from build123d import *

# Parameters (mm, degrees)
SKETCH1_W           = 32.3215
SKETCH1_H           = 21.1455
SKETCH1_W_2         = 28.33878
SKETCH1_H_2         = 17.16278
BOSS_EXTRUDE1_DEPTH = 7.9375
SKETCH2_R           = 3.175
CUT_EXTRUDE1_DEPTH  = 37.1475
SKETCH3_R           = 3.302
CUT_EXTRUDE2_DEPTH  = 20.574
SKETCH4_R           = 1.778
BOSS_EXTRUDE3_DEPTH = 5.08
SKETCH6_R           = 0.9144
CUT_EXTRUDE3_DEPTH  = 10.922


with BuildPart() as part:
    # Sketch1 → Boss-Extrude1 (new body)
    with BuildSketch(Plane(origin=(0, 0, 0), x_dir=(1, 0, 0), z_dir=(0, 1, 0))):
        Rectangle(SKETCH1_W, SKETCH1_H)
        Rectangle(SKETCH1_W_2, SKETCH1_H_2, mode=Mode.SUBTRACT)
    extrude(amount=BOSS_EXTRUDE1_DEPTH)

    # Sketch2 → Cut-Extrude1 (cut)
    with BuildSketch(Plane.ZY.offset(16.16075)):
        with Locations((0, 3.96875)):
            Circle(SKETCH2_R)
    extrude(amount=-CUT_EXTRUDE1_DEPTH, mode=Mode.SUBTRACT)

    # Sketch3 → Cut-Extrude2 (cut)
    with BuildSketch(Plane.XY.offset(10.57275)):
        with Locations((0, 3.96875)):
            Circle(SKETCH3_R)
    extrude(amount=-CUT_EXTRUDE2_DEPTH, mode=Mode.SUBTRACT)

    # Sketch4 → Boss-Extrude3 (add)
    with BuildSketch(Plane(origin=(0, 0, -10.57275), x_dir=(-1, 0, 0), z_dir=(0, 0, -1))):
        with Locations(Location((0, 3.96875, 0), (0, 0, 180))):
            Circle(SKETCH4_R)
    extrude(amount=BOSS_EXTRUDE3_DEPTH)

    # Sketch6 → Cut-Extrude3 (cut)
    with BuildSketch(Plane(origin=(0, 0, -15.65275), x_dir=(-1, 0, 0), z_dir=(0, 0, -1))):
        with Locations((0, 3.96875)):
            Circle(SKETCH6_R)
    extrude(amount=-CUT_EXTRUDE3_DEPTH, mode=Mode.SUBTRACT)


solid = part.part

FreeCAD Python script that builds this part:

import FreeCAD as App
import Part
import Sketcher
from FreeCAD import Vector
Q = App.Units.Quantity

doc = App.newDocument("Part")
body = doc.addObject("PartDesign::Body", "Body")

# Sketch on XZ plane
sketch1 = body.newObject("Sketcher::SketchObject", "Sketch")
sketch1.AttachmentSupport = (doc.getObject("XZ_Plane"), [""])
sketch1.MapMode = "FlatFace"
sketch1.addGeometry([
    Part.LineSegment(Vector(-16, -11, 0), Vector(-16, 11, 0)),  # 0
    Part.LineSegment(Vector(-16, 11, 0), Vector(16, 11, 0)),  # 1
    Part.LineSegment(Vector(16, 11, 0), Vector(16, -11, 0)),  # 2
    Part.LineSegment(Vector(16, -11, 0), Vector(-16, -11, 0)),  # 3
    Part.LineSegment(Vector(14, 9, 0), Vector(-14, 9, 0)),  # 4
    Part.LineSegment(Vector(-14, 9, 0), Vector(-14, -9, 0)),  # 5
    Part.LineSegment(Vector(-14, -9, 0), Vector(14, -9, 0)),  # 6
    Part.LineSegment(Vector(14, -9, 0), Vector(14, 9, 0)),  # 7
], False)
sketch1.addConstraint([
    Sketcher.Constraint("Coincident", 0, 2, 1, 1),
    Sketcher.Constraint("Coincident", 1, 2, 2, 1),
    Sketcher.Constraint("Coincident", 2, 2, 3, 1),
    Sketcher.Constraint("Coincident", 3, 2, 0, 1),
    Sketcher.Constraint("Coincident", 4, 2, 5, 1),
    Sketcher.Constraint("Coincident", 5, 2, 6, 1),
    Sketcher.Constraint("Coincident", 6, 2, 7, 1),
    Sketcher.Constraint("Coincident", 7, 2, 4, 1),
    Sketcher.Constraint("Vertical", 0),
    Sketcher.Constraint("Horizontal", 1),
    Sketcher.Constraint("Vertical", 2),
    Sketcher.Constraint("Horizontal", 3),
    Sketcher.Constraint("Horizontal", 4),
    Sketcher.Constraint("Vertical", 5),
    Sketcher.Constraint("Horizontal", 6),
    Sketcher.Constraint("Vertical", 7),
    Sketcher.Constraint("Symmetric", 0, 2, 2, 2, -1, 1),
    Sketcher.Constraint("Symmetric", 4, 2, 6, 2, -1, 1),
    Sketcher.Constraint("DistanceX", 1, 1, 1, 2, Q("1.2725 in")),
    Sketcher.Constraint("DistanceX", 4, 2, 4, 1, Q("1.1157 in")),
    Sketcher.Constraint("DistanceY", 0, 1, 0, 2, Q("0.8325 in")),
    Sketcher.Constraint("DistanceY", 5, 2, 5, 1, Q("0.6757 in")),
])
pad1 = body.newObject("PartDesign::Pad", "Pad")
pad1.Profile = sketch1
pad1.Length = Q("0.3125 in")
pad1.Reversed = True

# Sketch on YZ plane
sketch2 = body.newObject("Sketcher::SketchObject", "Sketch001")
sketch2.AttachmentSupport = (doc.getObject("YZ_Plane"), [""])
sketch2.MapMode = "FlatFace"
sketch2.AttachmentOffset = App.Placement(Vector(0, 0, -16.16075), App.Rotation())
sketch2.addGeometry(Part.Circle(Vector(4, 0, 0), Vector(0, 0, 1), 3.2), False)
sketch2.addConstraint([
    Sketcher.Constraint("PointOnObject", 0, 3, -1),
    Sketcher.Constraint("Diameter", 0, Q("0.25 in")),
    Sketcher.Constraint("DistanceX", -1, 1, 0, 3, Q("0.15625 in")),
])
pocket1 = body.newObject("PartDesign::Pocket", "Pocket")
pocket1.Profile = sketch2
pocket1.Length = Q("1.4625 in")
pocket1.Reversed = True

# Sketch on XY plane
sketch3 = body.newObject("Sketcher::SketchObject", "Sketch002")
sketch3.AttachmentSupport = (doc.getObject("XY_Plane"), [""])
sketch3.MapMode = "FlatFace"
sketch3.AttachmentOffset = App.Placement(Vector(0, 0, 10.57275), App.Rotation())
sketch3.addGeometry(Part.Circle(Vector(0, 4, 0), Vector(0, 0, 1), 3.3), False)
sketch3.addConstraint([
    Sketcher.Constraint("PointOnObject", 0, 3, -2),
    Sketcher.Constraint("Diameter", 0, Q("0.26 in")),
    Sketcher.Constraint("DistanceY", -1, 1, 0, 3, Q("0.15625 in")),
])
pocket2 = body.newObject("PartDesign::Pocket", "Pocket001")
pocket2.Profile = sketch3
pocket2.Length = Q("0.81 in")

# Sketch on XY plane
sketch4 = body.newObject("Sketcher::SketchObject", "Sketch003")
sketch4.AttachmentSupport = (doc.getObject("XY_Plane"), [""])
sketch4.MapMode = "FlatFace"
sketch4.AttachmentOffset = App.Placement(Vector(0, 0, -10.57275), App.Rotation())
sketch4.addGeometry(Part.Circle(Vector(0, 4, 0), Vector(0, 0, 1), 1.8), False)
sketch4.addConstraint([
    Sketcher.Constraint("PointOnObject", 0, 3, -2),
    Sketcher.Constraint("Diameter", 0, Q("0.14 in")),
    Sketcher.Constraint("DistanceY", -1, 1, 0, 3, Q("0.15625 in")),
])
pad2 = body.newObject("PartDesign::Pad", "Pad001")
pad2.Profile = sketch4
pad2.Length = Q("0.2 in")
pad2.Reversed = True

# Sketch on XY plane
sketch5 = body.newObject("Sketcher::SketchObject", "Sketch004")
sketch5.AttachmentSupport = (doc.getObject("XY_Plane"), [""])
sketch5.MapMode = "FlatFace"
sketch5.AttachmentOffset = App.Placement(Vector(0, 0, -15.65275), App.Rotation())
sketch5.addGeometry(Part.Circle(Vector(0, 4, 0), Vector(0, 0, 1), 0.9), False)
sketch5.addConstraint([
    Sketcher.Constraint("PointOnObject", 0, 3, -2),
    Sketcher.Constraint("Diameter", 0, Q("0.072 in")),
    Sketcher.Constraint("DistanceY", -1, 1, 0, 3, Q("0.15625 in")),
])
pocket3 = body.newObject("PartDesign::Pocket", "Pocket002")
pocket3.Profile = sketch5
pocket3.Length = Q("0.43 in")
pocket3.Reversed = True

doc.recompute()
